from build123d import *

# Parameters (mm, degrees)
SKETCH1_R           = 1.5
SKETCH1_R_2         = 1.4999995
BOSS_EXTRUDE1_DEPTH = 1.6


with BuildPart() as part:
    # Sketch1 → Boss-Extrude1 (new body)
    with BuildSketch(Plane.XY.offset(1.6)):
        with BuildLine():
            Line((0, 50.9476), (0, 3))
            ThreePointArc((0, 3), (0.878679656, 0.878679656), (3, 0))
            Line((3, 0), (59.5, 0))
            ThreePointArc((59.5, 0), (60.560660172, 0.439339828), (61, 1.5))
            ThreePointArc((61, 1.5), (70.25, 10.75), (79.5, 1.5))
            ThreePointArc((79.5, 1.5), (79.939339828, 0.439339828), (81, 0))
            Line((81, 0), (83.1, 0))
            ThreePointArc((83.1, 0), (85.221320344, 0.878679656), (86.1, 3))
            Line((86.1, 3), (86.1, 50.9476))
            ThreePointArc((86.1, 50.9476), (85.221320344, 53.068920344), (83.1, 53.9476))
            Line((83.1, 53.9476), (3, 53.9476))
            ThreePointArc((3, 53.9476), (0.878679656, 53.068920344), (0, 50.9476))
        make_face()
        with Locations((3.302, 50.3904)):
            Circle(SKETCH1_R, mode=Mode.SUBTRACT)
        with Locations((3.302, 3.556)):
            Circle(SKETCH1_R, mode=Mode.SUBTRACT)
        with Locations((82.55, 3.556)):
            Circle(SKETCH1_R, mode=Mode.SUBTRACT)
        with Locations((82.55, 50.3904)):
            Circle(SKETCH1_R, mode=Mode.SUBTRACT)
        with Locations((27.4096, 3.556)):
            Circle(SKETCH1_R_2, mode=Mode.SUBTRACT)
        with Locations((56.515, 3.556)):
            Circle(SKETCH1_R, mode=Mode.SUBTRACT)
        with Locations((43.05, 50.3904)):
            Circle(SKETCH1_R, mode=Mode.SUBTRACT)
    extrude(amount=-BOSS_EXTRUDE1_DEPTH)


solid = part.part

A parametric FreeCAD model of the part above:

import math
import FreeCAD as App
import Part
import Sketcher

V = App.Vector
Q = App.Units.Quantity

doc = App.newDocument("Part")
params = doc.addObject("Spreadsheet::Sheet", "Params")
for row, (alias, value) in enumerate([
    ("sketch1_diameter", "3 mm"),
    ("sketch1_radius", "3 mm"),
    ("sketch1_radius2", "9.25 mm"),
    ("sketch1_width", "56.5 mm"),
    ("sketch1_width2", "2.1 mm"),
    ("pad1_length", "1.6 mm"),
], start=1):
    params.set(f"A{row}", alias)
    params.set(f"B{row}", "=" + value)
    params.setAlias(f"B{row}", alias)

body = doc.addObject("PartDesign::Body", "Body")

sketch1 = body.newObject("Sketcher::SketchObject", "Sketch")
sketch1.AttachmentSupport = (doc.getObject("XY_Plane"), [""])
sketch1.MapMode = "FlatFace"
sketch1.AttachmentOffset = App.Placement(V(0, 0, 1.6), App.Rotation())
sketch1.addGeometry([
    Part.LineSegment(V(0, 50.9, 0), V(0, 3, 0)),
    Part.ArcOfCircle(Part.Circle(V(3, 3, 0), V(0, 0, 1), 3), math.radians(180), math.radians(270)),
    Part.LineSegment(V(3, 0, 0), V(59.5, 0, 0)),
    Part.ArcOfCircle(Part.Circle(V(59.5, 1.5, 0), V(0, 0, 1), 1.5), math.radians(-90), math.radians(0)),
    Part.ArcOfCircle(Part.Circle(V(70.2, 1.5, 0), V(0, 0, 1), 9.2), math.radians(0), math.radians(180)),
    Part.ArcOfCircle(Part.Circle(V(81, 1.5, 0), V(0, 0, 1), 1.5), math.radians(180), math.radians(270)),
    Part.LineSegment(V(81, 0, 0), V(83.1, 0, 0)),
    Part.ArcOfCircle(Part.Circle(V(83.1, 3, 0), V(0, 0, 1), 3), math.radians(-90), math.radians(0)),
    Part.LineSegment(V(86.1, 3, 0), V(86.1, 50.9, 0)),
    Part.ArcOfCircle(Part.Circle(V(83.1, 50.9, 0), V(0, 0, 1), 3), math.radians(0), math.radians(90)),
    Part.LineSegment(V(83.1, 53.9, 0), V(3, 53.9, 0)),
    Part.ArcOfCircle(Part.Circle(V(3, 50.9, 0), V(0, 0, 1), 3), math.radians(90), math.radians(180)),
    Part.Circle(V(3.3, 3.6, 0), V(0, 0, 1), 1.5),
    Part.Circle(V(27.4, 3.6, 0), V(0, 0, 1), 1.5),
    Part.Circle(V(56.5, 3.6, 0), V(0, 0, 1), 1.5),
    Part.Circle(V(82.5, 3.6, 0), V(0, 0, 1), 1.5),
    Part.Circle(V(3.3, 50.4, 0), V(0, 0, 1), 1.5),
    Part.Circle(V(43, 50.4, 0), V(0, 0, 1), 1.5),
    Part.Circle(V(82.5, 50.4, 0), V(0, 0, 1), 1.5),
], False)
sketch1.addConstraint([
    Sketcher.Constraint("Tangent", 0, 2, 1, 1),
    Sketcher.Constraint("Tangent", 1, 2, 2, 1),
    Sketcher.Constraint("Tangent", 2, 2, 3, 1),
    Sketcher.Constraint("Tangent", 3, 2, 4, 2),
    Sketcher.Constraint("Tangent", 4, 1, 5, 1),
    Sketcher.Constraint("Tangent", 5, 2, 6, 1),
    Sketcher.Constraint("Tangent", 6, 2, 7, 1),
    Sketcher.Constraint("Tangent", 7, 2, 8, 1),
    Sketcher.Constraint("Tangent", 8, 2, 9, 1),
    Sketcher.Constraint("Tangent", 9, 2, 10, 1),
    Sketcher.Constraint("Tangent", 10, 2, 11, 1),
    Sketcher.Constraint("Tangent", 11, 2, 0, 1),
    Sketcher.Constraint("Vertical", 0),
    Sketcher.Constraint("Horizontal", 2),
    Sketcher.Constraint("Horizontal", 6),
    Sketcher.Constraint("Vertical", 8),
    Sketcher.Constraint("Horizontal", 10),
    Sketcher.Constraint("Equal", 3, 5),
    Sketcher.Constraint("Equal", 1, 7),
    Sketcher.Constraint("Equal", 7, 9),
    Sketcher.Constraint("Equal", 9, 11),
    Sketcher.Constraint("Equal", 5, 12),
    Sketcher.Constraint("Equal", 12, 13),
    Sketcher.Constraint("Equal", 13, 14),
    Sketcher.Constraint("Equal", 14, 15),
    Sketcher.Constraint("Equal", 15, 16),
    Sketcher.Constraint("Equal", 16, 17),
    Sketcher.Constraint("Equal", 17, 18),
    Sketcher.Constraint("PointOnObject", 0, 2, -2),
    Sketcher.Constraint("PointOnObject", 1, 2, -1),
    Sketcher.Constraint("PointOnObject", 5, 2, -1),
    Sketcher.Constraint("Horizontal", 3, 3, 4, 3),
    Sketcher.Constraint("Horizontal", 12, 3, 13, 3),
    Sketcher.Constraint("Horizontal", 13, 3, 14, 3),
    Sketcher.Constraint("Horizontal", 14, 3, 15, 3),
    Sketcher.Constraint("Horizontal", 16, 3, 17, 3),
    Sketcher.Constraint("Horizontal", 17, 3, 18, 3),
    Sketcher.Constraint("Vertical", 12, 3, 16, 3),
    Sketcher.Constraint("Vertical", 15, 3, 18, 3),
    Sketcher.Constraint("Diameter", 12, Q("3 mm")),
    Sketcher.Constraint("Radius", 1, Q("3 mm")),
    Sketcher.Constraint("Radius", 4, Q("9.25 mm")),
    Sketcher.Constraint("DistanceX", 2, 1, 2, 2, Q("56.5 mm")),
    Sketcher.Constraint("DistanceX", 6, 1, 6, 2, Q("2.1 mm")),
    Sketcher.Constraint("DistanceX", 4, 3, 15, 3, Q("12.3 mm")),
    Sketcher.Constraint("DistanceX", 17, 3, 18, 3, Q("39.5 mm")),
    Sketcher.Constraint("DistanceY", 0, 2, 0, 1, Q("47.9476 mm")),
    Sketcher.Constraint("DistanceX", -1, 1, 12, 3, Q("3.302 mm")),
    Sketcher.Constraint("DistanceY", -1, 1, 12, 3, Q("3.556 mm")),
    Sketcher.Constraint("DistanceX", -1, 1, 14, 3, Q("56.515 mm")),
    Sketcher.Constraint("DistanceX", -1, 1, 13, 3, Q("27.4096 mm")),
    Sketcher.Constraint("DistanceY", -1, 1, 16, 3, Q("50.3904 mm")),
])
sketch1.setExpression("Constraints[39]", "Params.sketch1_diameter")
sketch1.setExpression("Constraints[40]", "Params.sketch1_radius")
sketch1.setExpression("Constraints[41]", "Params.sketch1_radius2")
sketch1.setExpression("Constraints[42]", "Params.sketch1_width")
sketch1.setExpression("Constraints[43]", "Params.sketch1_width2")
pad1 = body.newObject("PartDesign::Pad", "Pad")
pad1.Profile = sketch1
pad1.setExpression("Length", "Params.pad1_length")
pad1.Reversed = True

doc.recompute()
